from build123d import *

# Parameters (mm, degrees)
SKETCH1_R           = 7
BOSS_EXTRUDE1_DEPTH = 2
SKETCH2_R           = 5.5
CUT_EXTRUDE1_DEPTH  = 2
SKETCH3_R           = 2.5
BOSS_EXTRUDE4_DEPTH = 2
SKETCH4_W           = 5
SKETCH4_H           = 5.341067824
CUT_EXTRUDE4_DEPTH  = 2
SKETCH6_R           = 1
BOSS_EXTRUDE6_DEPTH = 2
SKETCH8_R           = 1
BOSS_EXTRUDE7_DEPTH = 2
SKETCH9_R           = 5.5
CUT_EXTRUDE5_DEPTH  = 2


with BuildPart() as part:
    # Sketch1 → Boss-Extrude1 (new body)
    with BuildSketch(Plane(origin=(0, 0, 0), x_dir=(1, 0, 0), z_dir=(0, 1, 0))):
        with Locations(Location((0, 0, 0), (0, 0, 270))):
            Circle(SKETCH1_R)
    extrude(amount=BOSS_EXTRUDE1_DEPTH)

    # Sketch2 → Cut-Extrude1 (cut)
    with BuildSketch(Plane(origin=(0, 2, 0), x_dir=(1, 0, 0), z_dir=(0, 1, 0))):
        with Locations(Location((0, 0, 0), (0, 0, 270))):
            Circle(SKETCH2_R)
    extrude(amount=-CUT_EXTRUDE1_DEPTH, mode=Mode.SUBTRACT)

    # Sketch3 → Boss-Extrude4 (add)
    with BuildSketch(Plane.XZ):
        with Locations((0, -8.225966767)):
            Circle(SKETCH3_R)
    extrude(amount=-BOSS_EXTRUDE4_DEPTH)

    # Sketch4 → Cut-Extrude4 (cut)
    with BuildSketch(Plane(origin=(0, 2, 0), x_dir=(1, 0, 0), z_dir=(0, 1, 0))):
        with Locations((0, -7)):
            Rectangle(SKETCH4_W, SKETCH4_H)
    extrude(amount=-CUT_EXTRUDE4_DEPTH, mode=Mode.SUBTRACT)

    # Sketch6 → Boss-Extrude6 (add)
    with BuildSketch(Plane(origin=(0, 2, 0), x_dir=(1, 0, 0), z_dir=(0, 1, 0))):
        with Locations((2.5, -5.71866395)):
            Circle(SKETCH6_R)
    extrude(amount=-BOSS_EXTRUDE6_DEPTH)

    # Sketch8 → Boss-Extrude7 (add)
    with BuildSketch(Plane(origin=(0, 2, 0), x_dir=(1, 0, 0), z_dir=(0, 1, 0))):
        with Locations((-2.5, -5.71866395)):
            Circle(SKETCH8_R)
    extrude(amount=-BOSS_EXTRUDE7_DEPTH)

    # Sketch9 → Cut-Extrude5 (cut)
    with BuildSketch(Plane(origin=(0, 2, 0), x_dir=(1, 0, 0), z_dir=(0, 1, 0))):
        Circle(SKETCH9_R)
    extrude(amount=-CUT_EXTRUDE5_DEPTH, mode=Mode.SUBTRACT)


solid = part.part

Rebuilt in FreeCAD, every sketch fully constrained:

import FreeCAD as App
import Part
import Sketcher

V = App.Vector
Q = App.Units.Quantity

doc = App.newDocument("Part")
body = doc.addObject("PartDesign::Body", "Body")

sketch1 = body.newObject("Sketcher::SketchObject", "Sketch")
sketch1.AttachmentSupport = (doc.getObject("XZ_Plane"), [""])
sketch1.MapMode = "FlatFace"
sketch1.addGeometry(Part.Circle(V(0, 0, 0), V(0, 0, 1), 7), False)
sketch1.addConstraint([
    Sketcher.Constraint("Coincident", 0, 3, -1, 1),
    Sketcher.Constraint("Diameter", 0, Q("14 mm")),
])
pad1 = body.newObject("PartDesign::Pad", "Pad")
pad1.Profile = sketch1
pad1.Length = 2
pad1.Reversed = True

sketch2 = body.newObject("Sketcher::SketchObject", "Sketch001")
sketch2.AttachmentSupport = (doc.getObject("XZ_Plane"), [""])
sketch2.MapMode = "FlatFace"
sketch2.AttachmentOffset = App.Placement(V(0, 0, -2), App.Rotation())
sketch2.addGeometry(Part.Circle(V(0, 0, 0), V(0, 0, 1), 6), False)
sketch2.addConstraint([
    Sketcher.Constraint("Coincident", 0, 3, -1, 1),
    Sketcher.Constraint("Diameter", 0, Q("11 mm")),
])
pocket1 = body.newObject("PartDesign::Pocket", "Pocket")
pocket1.Profile = sketch2
pocket1.Length = 2
pocket1.Reversed = True

sketch3 = body.newObject("Sketcher::SketchObject", "Sketch002")
sketch3.AttachmentSupport = (doc.getObject("XZ_Plane"), [""])
sketch3.MapMode = "FlatFace"
sketch3.addGeometry(Part.Circle(V(0, -8.2, 0), V(0, 0, 1), 2.5), False)
sketch3.addConstraint([
    Sketcher.Constraint("PointOnObject", 0, 3, -2),
    Sketcher.Constraint("Diameter", 0, Q("5 mm")),
    Sketcher.Constraint("DistanceY", 0, 3, -1, 1, Q("8.225967 mm")),
])
pad2 = body.newObject("PartDesign::Pad", "Pad001")
pad2.Profile = sketch3
pad2.Length = 2
pad2.Reversed = True

sketch4 = body.newObject("Sketcher::SketchObject", "Sketch003")
sketch4.AttachmentSupport = (doc.getObject("XZ_Plane"), [""])
sketch4.MapMode = "FlatFace"
sketch4.AttachmentOffset = App.Placement(V(0, 0, -2), App.Rotation())
sketch4.addGeometry([
    Part.LineSegment(V(-2, 4, 0), V(-2, 10, 0)),
    Part.LineSegment(V(-2, 10, 0), V(2, 10, 0)),
    Part.LineSegment(V(2, 10, 0), V(2, 4, 0)),
    Part.LineSegment(V(2, 4, 0), V(-2, 4, 0)),
], False)
sketch4.addConstraint([
    Sketcher.Constraint("Coincident", 0, 2, 1, 1),
    Sketcher.Constraint("Coincident", 1, 2, 2, 1),
    Sketcher.Constraint("Coincident", 2, 2, 3, 1),
    Sketcher.Constraint("Coincident", 3, 2, 0, 1),
    Sketcher.Constraint("Vertical", 0),
    Sketcher.Constraint("Horizontal", 1),
    Sketcher.Constraint("Vertical", 2),
    Sketcher.Constraint("Horizontal", 3),
    Sketcher.Constraint("DistanceX", 1, 1, 1, 2, Q("5 mm")),
    Sketcher.Constraint("DistanceX", 0, 2, -1, 1, Q("2.5 mm")),
    Sketcher.Constraint("DistanceY", 0, 1, 0, 2, Q("5.341068 mm")),
    Sketcher.Constraint("DistanceY", -1, 1, 0, 2, Q("9.670534 mm")),
])
pocket2 = body.newObject("PartDesign::Pocket", "Pocket001")
pocket2.Profile = sketch4
pocket2.Length = 2
pocket2.Reversed = True

sketch5 = body.newObject("Sketcher::SketchObject", "Sketch004")
sketch5.AttachmentSupport = (doc.getObject("XZ_Plane"), [""])
sketch5.MapMode = "FlatFace"
sketch5.AttachmentOffset = App.Placement(V(0, 0, -2), App.Rotation())
sketch5.addGeometry(Part.Circle(V(2.5, 5.7, 0), V(0, 0, 1), 1), False)
sketch5.addConstraint([
    Sketcher.Constraint("Diameter", 0, Q("2 mm")),
    Sketcher.Constraint("DistanceX", -1, 1, 0, 3, Q("2.5 mm")),
    Sketcher.Constraint("DistanceY", -1, 1, 0, 3, Q("5.718664 mm")),
])
pad3 = body.newObject("PartDesign::Pad", "Pad002")
pad3.Profile = sketch5
pad3.Length = 2

sketch6 = body.newObject("Sketcher::SketchObject", "Sketch005")
sketch6.AttachmentSupport = (doc.getObject("XZ_Plane"), [""])
sketch6.MapMode = "FlatFace"
sketch6.AttachmentOffset = App.Placement(V(0, 0, -2), App.Rotation())
sketch6.addGeometry(Part.Circle(V(-2.5, 5.7, 0), V(0, 0, 1), 1), False)
sketch6.addConstraint([
    Sketcher.Constraint("Diameter", 0, Q("2 mm")),
    Sketcher.Constraint("DistanceX", 0, 3, -1, 1, Q("2.5 mm")),
    Sketcher.Constraint("DistanceY", -1, 1, 0, 3, Q("5.718664 mm")),
])
pad4 = body.newObject("PartDesign::Pad", "Pad003")
pad4.Profile = sketch6
pad4.Length = 2

sketch7 = body.newObject("Sketcher::SketchObject", "Sketch006")
sketch7.AttachmentSupport = (doc.getObject("XZ_Plane"), [""])
sketch7.MapMode = "FlatFace"
sketch7.AttachmentOffset = App.Placement(V(0, 0, -2), App.Rotation())
sketch7.addGeometry(Part.Circle(V(0, 0, 0), V(0, 0, 1), 6), False)
sketch7.addConstraint([
    Sketcher.Constraint("Coincident", 0, 3, -1, 1),
    Sketcher.Constraint("Diameter", 0, Q("11 mm")),
])
pocket3 = body.newObject("PartDesign::Pocket", "Pocket002")
pocket3.Profile = sketch7
pocket3.Length = 2
pocket3.Reversed = True

doc.recompute()
